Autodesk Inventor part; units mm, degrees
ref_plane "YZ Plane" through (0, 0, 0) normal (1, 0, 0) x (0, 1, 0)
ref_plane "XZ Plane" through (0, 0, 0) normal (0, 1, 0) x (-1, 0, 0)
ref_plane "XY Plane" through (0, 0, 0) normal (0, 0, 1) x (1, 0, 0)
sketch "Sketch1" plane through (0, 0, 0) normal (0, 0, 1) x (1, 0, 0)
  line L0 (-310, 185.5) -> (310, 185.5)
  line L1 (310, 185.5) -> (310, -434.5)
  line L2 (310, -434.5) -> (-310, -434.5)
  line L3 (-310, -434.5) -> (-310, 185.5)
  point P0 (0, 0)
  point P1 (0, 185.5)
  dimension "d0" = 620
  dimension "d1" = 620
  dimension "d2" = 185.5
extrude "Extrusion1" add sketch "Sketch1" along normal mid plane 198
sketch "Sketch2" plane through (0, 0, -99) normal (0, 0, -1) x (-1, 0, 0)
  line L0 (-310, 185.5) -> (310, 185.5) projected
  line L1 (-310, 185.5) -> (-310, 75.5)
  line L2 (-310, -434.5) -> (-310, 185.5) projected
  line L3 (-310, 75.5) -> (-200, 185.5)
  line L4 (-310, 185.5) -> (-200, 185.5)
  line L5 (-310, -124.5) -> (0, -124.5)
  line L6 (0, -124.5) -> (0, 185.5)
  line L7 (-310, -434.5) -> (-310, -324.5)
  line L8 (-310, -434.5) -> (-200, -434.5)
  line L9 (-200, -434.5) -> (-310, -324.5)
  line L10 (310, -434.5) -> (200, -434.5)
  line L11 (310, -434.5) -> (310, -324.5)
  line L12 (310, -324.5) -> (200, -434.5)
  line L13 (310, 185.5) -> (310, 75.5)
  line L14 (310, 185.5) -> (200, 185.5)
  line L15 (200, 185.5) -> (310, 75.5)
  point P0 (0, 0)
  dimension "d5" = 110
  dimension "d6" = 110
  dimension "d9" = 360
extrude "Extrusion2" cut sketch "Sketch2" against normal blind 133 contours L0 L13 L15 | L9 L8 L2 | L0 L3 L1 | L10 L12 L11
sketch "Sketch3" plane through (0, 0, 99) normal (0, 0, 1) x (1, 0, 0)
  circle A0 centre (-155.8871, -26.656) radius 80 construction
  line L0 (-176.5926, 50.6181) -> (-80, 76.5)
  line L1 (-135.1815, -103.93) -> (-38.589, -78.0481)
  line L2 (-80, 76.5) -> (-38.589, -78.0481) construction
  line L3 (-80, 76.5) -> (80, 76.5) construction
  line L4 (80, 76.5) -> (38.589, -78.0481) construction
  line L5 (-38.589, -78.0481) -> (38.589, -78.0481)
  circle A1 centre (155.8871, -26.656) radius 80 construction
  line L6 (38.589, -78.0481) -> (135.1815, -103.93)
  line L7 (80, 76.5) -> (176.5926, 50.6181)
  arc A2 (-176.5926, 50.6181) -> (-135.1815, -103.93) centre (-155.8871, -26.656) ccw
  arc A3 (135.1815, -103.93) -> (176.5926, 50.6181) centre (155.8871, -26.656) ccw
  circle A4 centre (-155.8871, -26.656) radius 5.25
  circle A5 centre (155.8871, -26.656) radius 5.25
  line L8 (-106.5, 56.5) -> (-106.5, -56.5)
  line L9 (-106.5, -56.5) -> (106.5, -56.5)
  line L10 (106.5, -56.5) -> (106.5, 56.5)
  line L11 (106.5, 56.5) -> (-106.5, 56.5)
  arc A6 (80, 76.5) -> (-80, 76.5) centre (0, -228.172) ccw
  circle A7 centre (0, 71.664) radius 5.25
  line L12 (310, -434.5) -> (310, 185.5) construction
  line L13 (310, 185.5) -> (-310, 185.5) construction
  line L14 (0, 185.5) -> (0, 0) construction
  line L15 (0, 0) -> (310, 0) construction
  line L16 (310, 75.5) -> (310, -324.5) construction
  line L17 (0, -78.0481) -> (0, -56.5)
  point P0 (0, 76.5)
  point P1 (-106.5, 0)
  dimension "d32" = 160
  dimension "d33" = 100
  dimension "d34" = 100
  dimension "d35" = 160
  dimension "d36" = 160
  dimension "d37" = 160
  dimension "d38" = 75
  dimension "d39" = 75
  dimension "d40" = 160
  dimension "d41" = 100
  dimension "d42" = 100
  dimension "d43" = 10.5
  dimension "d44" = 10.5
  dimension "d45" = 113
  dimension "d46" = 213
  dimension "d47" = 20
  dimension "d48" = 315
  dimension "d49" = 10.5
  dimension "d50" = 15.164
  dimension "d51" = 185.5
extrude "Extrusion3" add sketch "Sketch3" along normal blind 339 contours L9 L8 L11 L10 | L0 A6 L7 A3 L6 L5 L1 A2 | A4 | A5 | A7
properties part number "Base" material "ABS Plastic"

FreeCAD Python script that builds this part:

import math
import FreeCAD as App
import Part
import Sketcher
Q = App.Units.Quantity


def add_polygon(sketch, points):
    """Adds a closed chain of lines whose ends are joined by coincident constraints."""
    first, n = sketch.GeometryCount, len(points)
    for a, b in zip(points, points[1:] + points[:1]):
        sketch.addGeometry(Part.LineSegment(App.Vector(*a, 0), App.Vector(*b, 0)), False)
    for i in range(n):
        sketch.addConstraint(Sketcher.Constraint("Coincident", first + i, 2, first + (i + 1) % n, 1))

doc = App.newDocument("Part")
body = doc.addObject("PartDesign::Body", "Body")

# Sketch on XY plane
sketch1 = doc.addObject("Sketcher::SketchObject", "Sketch")
body.addObject(sketch1)
sketch1.AttachmentSupport = (doc.XY_Plane, [""])
sketch1.MapMode = "FlatFace"
add_polygon(sketch1, [(310, 186), (-310, 186), (-310, -434), (310, -434)])  # lines 0-3
sketch1.addConstraint(Sketcher.Constraint("Horizontal", 0))
sketch1.addConstraint(Sketcher.Constraint("Vertical", 1))
sketch1.addConstraint(Sketcher.Constraint("Horizontal", 2))
sketch1.addConstraint(Sketcher.Constraint("Vertical", 3))
sketch1.addConstraint(Sketcher.Constraint("Equal", 2, 1))
sketch1.addConstraint(Sketcher.Constraint("DistanceX", 0, 2, 0, 1, 620.0))
sketch1.addConstraint(Sketcher.Constraint("DistanceY", -1, 1, 0, 2, 185.5))
sketch1.addConstraint(Sketcher.Constraint("DistanceX", 0, 2, -1, 1, 310.0))
pad1 = doc.addObject("PartDesign::Pad", "Pad")
body.addObject(pad1)
pad1.Profile = sketch1
pad1.Length = 198
pad1.Midplane = True

# Sketch on XY plane
sketch2 = doc.addObject("Sketcher::SketchObject", "Sketch001")
body.addObject(sketch2)
sketch2.AttachmentSupport = (doc.XY_Plane, [""])
sketch2.MapMode = "FlatFace"
sketch2.AttachmentOffset = App.Placement(App.Vector(0, 0, -99), App.Rotation())
add_polygon(sketch2, [(-310, 186), (-200, 186), (-310, 76)])  # lines 0-2
add_polygon(sketch2, [(200, -434), (310, -324), (310, -434)])  # lines 3-5
add_polygon(sketch2, [(200, 186), (310, 186), (310, 76)])  # lines 6-8
add_polygon(sketch2, [(-200, -434), (-310, -434), (-310, -324)])  # lines 9-11
sketch2.addConstraint(Sketcher.Constraint("Horizontal", 0))
sketch2.addConstraint(Sketcher.Constraint("Vertical", 2))
sketch2.addConstraint(Sketcher.Constraint("Vertical", 4))
sketch2.addConstraint(Sketcher.Constraint("Horizontal", 5))
sketch2.addConstraint(Sketcher.Constraint("Horizontal", 6))
sketch2.addConstraint(Sketcher.Constraint("Vertical", 7))
sketch2.addConstraint(Sketcher.Constraint("Horizontal", 9))
sketch2.addConstraint(Sketcher.Constraint("Vertical", 10))
sketch2.addConstraint(Sketcher.Constraint("Symmetric", 2, 2, 6, 2, -2))
sketch2.addConstraint(Sketcher.Constraint("Symmetric", 4, 2, 9, 2, -2))
sketch2.addConstraint(Sketcher.Constraint("Parallel", 1, 3))
sketch2.addConstraint(Sketcher.Constraint("Perpendicular", 3, 8))
sketch2.addConstraint(Sketcher.Constraint("Parallel", 8, 11))
sketch2.addConstraint(Sketcher.Constraint("Horizontal", 1, 2, 7, 2))
sketch2.addConstraint(Sketcher.Constraint("Horizontal", 3, 2, 10, 2))
sketch2.addConstraint(Sketcher.Constraint("Vertical", 4, 2, 6, 2))
sketch2.addConstraint(Sketcher.Constraint("Vertical", 5, 2, 8, 2))
sketch2.addConstraint(Sketcher.Constraint("Vertical", 0, 2, 11, 2))
sketch2.addConstraint(Sketcher.Constraint("DistanceX", 0, 1, 0, 2, 110.0))
sketch2.addConstraint(Sketcher.Constraint("DistanceX", 0, 2, -1, 1, 200.0))
sketch2.addConstraint(Sketcher.Constraint("DistanceY", 3, 2, 0, 2, 510.0))
sketch2.addConstraint(Sketcher.Constraint("DistanceY", -1, 1, 0, 2, 185.5))
pocket1 = doc.addObject("PartDesign::Pocket", "Pocket")
body.addObject(pocket1)
pocket1.Profile = sketch2
pocket1.Length = 133
pocket1.Reversed = True

# Sketch on XY plane
sketch3 = doc.addObject("Sketcher::SketchObject", "Sketch002")
body.addObject(sketch3)
sketch3.AttachmentSupport = (doc.XY_Plane, [""])
sketch3.MapMode = "FlatFace"
sketch3.AttachmentOffset = App.Placement(App.Vector(0, 0, 99), App.Rotation())
sketch3.addGeometry(Part.LineSegment(App.Vector(-80, 76, 0), App.Vector(-177, 51, 0)), False)
sketch3.addGeometry(Part.ArcOfCircle(Part.Circle(App.Vector(-156, -27, 0), App.Vector(0, 0, 1), 80), math.radians(105), math.radians(285)), False)
sketch3.addGeometry(Part.LineSegment(App.Vector(-135, -104, 0), App.Vector(-39, -78, 0)), False)
sketch3.addGeometry(Part.LineSegment(App.Vector(-39, -78, 0), App.Vector(0, -78, 0)), False)
sketch3.addGeometry(Part.LineSegment(App.Vector(0, -78, 0), App.Vector(39, -78, 0)), False)
sketch3.addGeometry(Part.LineSegment(App.Vector(39, -78, 0), App.Vector(135, -104, 0)), False)
sketch3.addGeometry(Part.ArcOfCircle(Part.Circle(App.Vector(156, -27, 0), App.Vector(0, 0, 1), 80), math.radians(-105), math.radians(75)), False)
sketch3.addGeometry(Part.LineSegment(App.Vector(177, 51, 0), App.Vector(80, 76, 0)), False)
sketch3.addGeometry(Part.ArcOfCircle(Part.Circle(App.Vector(0, -228, 0), App.Vector(0, 0, 1), 315), math.radians(75), math.radians(105)), False)
sketch3.addConstraint(Sketcher.Constraint("Tangent", 0, 2, 1, 1))
sketch3.addConstraint(Sketcher.Constraint("Tangent", 1, 2, 2, 1))
sketch3.addConstraint(Sketcher.Constraint("Coincident", 2, 2, 3, 1))
sketch3.addConstraint(Sketcher.Constraint("Coincident", 3, 2, 4, 1))
sketch3.addConstraint(Sketcher.Constraint("Coincident", 4, 2, 5, 1))
sketch3.addConstraint(Sketcher.Constraint("Tangent", 5, 2, 6, 1))
sketch3.addConstraint(Sketcher.Constraint("Tangent", 6, 2, 7, 1))
sketch3.addConstraint(Sketcher.Constraint("Coincident", 7, 2, 8, 1))
sketch3.addConstraint(Sketcher.Constraint("Coincident", 8, 2, 0, 1))
sketch3.addConstraint(Sketcher.Constraint("Horizontal", 3))
sketch3.addConstraint(Sketcher.Constraint("Horizontal", 4))
sketch3.addConstraint(Sketcher.Constraint("Equal", 1, 6))
sketch3.addConstraint(Sketcher.Constraint("Symmetric", 1, 3, 6, 3, -2))
sketch3.addConstraint(Sketcher.Constraint("Symmetric", 7, 2, 8, 2, -2))
sketch3.addConstraint(Sketcher.Constraint("PointOnObject", 3, 2, -2))
sketch3.addConstraint(Sketcher.Constraint("Parallel", 0, 2))
sketch3.addConstraint(Sketcher.Constraint("Parallel", 5, 7))
sketch3.addConstraint(Sketcher.Constraint("Equal", 0, 2))
sketch3.addConstraint(Sketcher.Constraint("Radius", 1, 80.0))
sketch3.addConstraint(Sketcher.Constraint("Radius", 8, 315.0))
sketch3.addConstraint(Sketcher.Constraint("Distance", 0, 100.0))
sketch3.addConstraint(Sketcher.Constraint("DistanceX", 8, 2, 7, 2, 160.0))
sketch3.addConstraint(Sketcher.Constraint("Angle", 0, Q("-165 deg")))
sketch3.addConstraint(Sketcher.Constraint("DistanceY", -1, 1, 7, 2, 76.5))
pad2 = doc.addObject("PartDesign::Pad", "Pad001")
body.addObject(pad2)
pad2.Profile = sketch3
pad2.Length = 339

doc.recompute()
